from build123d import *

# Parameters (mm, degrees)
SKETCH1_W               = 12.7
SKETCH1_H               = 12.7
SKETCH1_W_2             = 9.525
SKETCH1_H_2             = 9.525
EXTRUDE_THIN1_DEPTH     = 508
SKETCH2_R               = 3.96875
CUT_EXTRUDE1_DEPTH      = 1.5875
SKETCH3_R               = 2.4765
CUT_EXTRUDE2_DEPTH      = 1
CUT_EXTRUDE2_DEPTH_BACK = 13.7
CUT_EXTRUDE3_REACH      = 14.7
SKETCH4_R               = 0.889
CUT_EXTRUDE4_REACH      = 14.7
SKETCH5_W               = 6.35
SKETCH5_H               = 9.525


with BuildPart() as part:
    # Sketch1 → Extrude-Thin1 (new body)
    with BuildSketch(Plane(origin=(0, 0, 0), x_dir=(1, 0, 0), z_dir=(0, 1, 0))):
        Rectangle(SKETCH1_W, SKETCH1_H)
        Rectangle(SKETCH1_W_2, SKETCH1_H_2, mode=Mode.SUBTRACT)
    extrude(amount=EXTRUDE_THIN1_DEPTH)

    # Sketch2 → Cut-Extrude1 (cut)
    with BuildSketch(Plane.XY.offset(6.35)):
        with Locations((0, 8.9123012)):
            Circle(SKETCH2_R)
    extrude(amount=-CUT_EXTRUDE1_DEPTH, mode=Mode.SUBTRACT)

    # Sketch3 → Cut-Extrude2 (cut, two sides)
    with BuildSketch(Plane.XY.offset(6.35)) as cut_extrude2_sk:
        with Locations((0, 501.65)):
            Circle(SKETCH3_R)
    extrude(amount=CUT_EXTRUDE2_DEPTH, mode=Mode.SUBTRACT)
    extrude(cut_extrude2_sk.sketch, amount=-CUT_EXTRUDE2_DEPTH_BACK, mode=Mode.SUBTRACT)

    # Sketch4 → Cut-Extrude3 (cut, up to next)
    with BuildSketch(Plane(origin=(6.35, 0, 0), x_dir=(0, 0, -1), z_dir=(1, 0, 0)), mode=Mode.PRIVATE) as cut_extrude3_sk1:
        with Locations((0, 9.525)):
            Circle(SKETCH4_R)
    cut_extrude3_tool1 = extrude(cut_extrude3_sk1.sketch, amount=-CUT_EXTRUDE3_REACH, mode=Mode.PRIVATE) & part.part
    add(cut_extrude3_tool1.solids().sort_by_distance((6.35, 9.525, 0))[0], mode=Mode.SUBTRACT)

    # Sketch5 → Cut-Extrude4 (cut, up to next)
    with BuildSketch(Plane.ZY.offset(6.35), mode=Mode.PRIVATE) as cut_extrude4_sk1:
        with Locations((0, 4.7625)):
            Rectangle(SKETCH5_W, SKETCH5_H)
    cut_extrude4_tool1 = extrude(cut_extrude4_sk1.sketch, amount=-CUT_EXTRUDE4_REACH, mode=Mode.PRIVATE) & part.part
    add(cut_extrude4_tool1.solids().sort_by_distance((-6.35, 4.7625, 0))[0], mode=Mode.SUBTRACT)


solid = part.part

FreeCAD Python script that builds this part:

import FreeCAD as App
import Part
import Sketcher
Q = App.Units.Quantity


def add_polygon(sketch, points):
    """Adds a closed chain of lines whose ends are joined by coincident constraints."""
    first, n = sketch.GeometryCount, len(points)
    for a, b in zip(points, points[1:] + points[:1]):
        sketch.addGeometry(Part.LineSegment(App.Vector(*a, 0), App.Vector(*b, 0)), False)
    for i in range(n):
        sketch.addConstraint(Sketcher.Constraint("Coincident", first + i, 2, first + (i + 1) % n, 1))

doc = App.newDocument("Part")
body = doc.addObject("PartDesign::Body", "Body")

# Sketch on XZ plane
sketch1 = body.newObject("Sketcher::SketchObject", "Sketch")
sketch1.AttachmentSupport = (doc.getObject("XZ_Plane"), [""])
sketch1.MapMode = "FlatFace"
add_polygon(sketch1, [(-6, -6), (-6, 6), (6, 6), (6, -6)])  # lines 0-3
add_polygon(sketch1, [(5, 5), (-5, 5), (-5, -5), (5, -5)])  # lines 4-7
sketch1.addConstraint(Sketcher.Constraint("Vertical", 0))
sketch1.addConstraint(Sketcher.Constraint("Horizontal", 1))
sketch1.addConstraint(Sketcher.Constraint("Vertical", 2))
sketch1.addConstraint(Sketcher.Constraint("Horizontal", 3))
sketch1.addConstraint(Sketcher.Constraint("Horizontal", 4))
sketch1.addConstraint(Sketcher.Constraint("Vertical", 5))
sketch1.addConstraint(Sketcher.Constraint("Horizontal", 6))
sketch1.addConstraint(Sketcher.Constraint("Vertical", 7))
sketch1.addConstraint(Sketcher.Constraint("Symmetric", 0, 2, 2, 2, -1, 1))
sketch1.addConstraint(Sketcher.Constraint("Symmetric", 4, 2, 6, 2, -1, 1))
sketch1.addConstraint(Sketcher.Constraint("Equal", 3, 0))
sketch1.addConstraint(Sketcher.Constraint("Equal", 6, 5))
sketch1.addConstraint(Sketcher.Constraint("DistanceX", 1, 1, 1, 2, Q("0.5 in")))
sketch1.addConstraint(Sketcher.Constraint("DistanceX", 4, 2, 4, 1, Q("0.375 in")))
pad1 = body.newObject("PartDesign::Pad", "Pad")
pad1.Profile = sketch1
pad1.Length = Q("20 in")
pad1.Reversed = True

# Sketch on XY plane
sketch2 = body.newObject("Sketcher::SketchObject", "Sketch001")
sketch2.AttachmentSupport = (doc.getObject("XY_Plane"), [""])
sketch2.MapMode = "FlatFace"
sketch2.AttachmentOffset = App.Placement(App.Vector(0, 0, 0.25 * 25.4), App.Rotation())
sketch2.addGeometry(Part.Circle(App.Vector(0, 8.9, 0), App.Vector(0, 0, 1), 4), False)
sketch2.addConstraint(Sketcher.Constraint("PointOnObject", 0, 3, -2))
sketch2.addConstraint(Sketcher.Constraint("Diameter", 0, Q("0.3125 in")))
sketch2.addConstraint(Sketcher.Constraint("DistanceY", -1, 1, 0, 3, Q("8.912301 mm")))
pocket1 = body.newObject("PartDesign::Pocket", "Pocket")
pocket1.Profile = sketch2
pocket1.Length = Q("0.0625 in")

# Sketch on XY plane
sketch3 = body.newObject("Sketcher::SketchObject", "Sketch002")
sketch3.AttachmentSupport = (doc.getObject("XY_Plane"), [""])
sketch3.MapMode = "FlatFace"
sketch3.AttachmentOffset = App.Placement(App.Vector(0, 0, 0.25 * 25.4), App.Rotation())
sketch3.addGeometry(Part.Circle(App.Vector(0, 501.6, 0), App.Vector(0, 0, 1), 2.5), False)
sketch3.addConstraint(Sketcher.Constraint("PointOnObject", 0, 3, -2))
sketch3.addConstraint(Sketcher.Constraint("Diameter", 0, Q("0.195 in")))
sketch3.addConstraint(Sketcher.Constraint("DistanceY", -1, 1, 0, 3, Q("19.75 in")))
pocket2 = body.newObject("PartDesign::Pocket", "Pocket001")
pocket2.Profile = sketch3
pocket2.Type = "ThroughAll"
pocket2.Midplane = True

# Sketch on YZ plane
sketch4 = body.newObject("Sketcher::SketchObject", "Sketch003")
sketch4.AttachmentSupport = (doc.getObject("YZ_Plane"), [""])
sketch4.MapMode = "FlatFace"
sketch4.AttachmentOffset = App.Placement(App.Vector(0, 0, 0.25 * 25.4), App.Rotation())
sketch4.addGeometry(Part.Circle(App.Vector(9.5, 0, 0), App.Vector(0, 0, 1), 0.9), False)
sketch4.addConstraint(Sketcher.Constraint("PointOnObject", 0, 3, -1))
sketch4.addConstraint(Sketcher.Constraint("Diameter", 0, Q("0.07 in")))
sketch4.addConstraint(Sketcher.Constraint("DistanceX", -1, 1, 0, 3, Q("0.375 in")))
pocket3 = body.newObject("PartDesign::Pocket", "Pocket002")
pocket3.Profile = sketch4
pocket3.Type = "UpToFirst"

# Sketch on YZ plane
sketch5 = body.newObject("Sketcher::SketchObject", "Sketch004")
sketch5.AttachmentSupport = (doc.getObject("YZ_Plane"), [""])
sketch5.MapMode = "FlatFace"
sketch5.AttachmentOffset = App.Placement(App.Vector(0, 0, -0.25 * 25.4), App.Rotation())
add_polygon(sketch5, [(10, -3), (0, -3), (0, 3), (10, 3)])  # lines 0-3
sketch5.addConstraint(Sketcher.Constraint("Horizontal", 0))
sketch5.addConstraint(Sketcher.Constraint("Vertical", 1))
sketch5.addConstraint(Sketcher.Constraint("Horizontal", 2))
sketch5.addConstraint(Sketcher.Constraint("Vertical", 3))
sketch5.addConstraint(Sketcher.Constraint("Symmetric", 0, 2, 1, 2, -1, 1))
sketch5.addConstraint(Sketcher.Constraint("DistanceY", 1, 1, 1, 2, Q("0.25 in")))
sketch5.addConstraint(Sketcher.Constraint("DistanceX", 0, 2, 0, 1, Q("0.375 in")))
pocket4 = body.newObject("PartDesign::Pocket", "Pocket003")
pocket4.Profile = sketch5
pocket4.Type = "UpToFirst"
pocket4.Reversed = True

doc.recompute()
